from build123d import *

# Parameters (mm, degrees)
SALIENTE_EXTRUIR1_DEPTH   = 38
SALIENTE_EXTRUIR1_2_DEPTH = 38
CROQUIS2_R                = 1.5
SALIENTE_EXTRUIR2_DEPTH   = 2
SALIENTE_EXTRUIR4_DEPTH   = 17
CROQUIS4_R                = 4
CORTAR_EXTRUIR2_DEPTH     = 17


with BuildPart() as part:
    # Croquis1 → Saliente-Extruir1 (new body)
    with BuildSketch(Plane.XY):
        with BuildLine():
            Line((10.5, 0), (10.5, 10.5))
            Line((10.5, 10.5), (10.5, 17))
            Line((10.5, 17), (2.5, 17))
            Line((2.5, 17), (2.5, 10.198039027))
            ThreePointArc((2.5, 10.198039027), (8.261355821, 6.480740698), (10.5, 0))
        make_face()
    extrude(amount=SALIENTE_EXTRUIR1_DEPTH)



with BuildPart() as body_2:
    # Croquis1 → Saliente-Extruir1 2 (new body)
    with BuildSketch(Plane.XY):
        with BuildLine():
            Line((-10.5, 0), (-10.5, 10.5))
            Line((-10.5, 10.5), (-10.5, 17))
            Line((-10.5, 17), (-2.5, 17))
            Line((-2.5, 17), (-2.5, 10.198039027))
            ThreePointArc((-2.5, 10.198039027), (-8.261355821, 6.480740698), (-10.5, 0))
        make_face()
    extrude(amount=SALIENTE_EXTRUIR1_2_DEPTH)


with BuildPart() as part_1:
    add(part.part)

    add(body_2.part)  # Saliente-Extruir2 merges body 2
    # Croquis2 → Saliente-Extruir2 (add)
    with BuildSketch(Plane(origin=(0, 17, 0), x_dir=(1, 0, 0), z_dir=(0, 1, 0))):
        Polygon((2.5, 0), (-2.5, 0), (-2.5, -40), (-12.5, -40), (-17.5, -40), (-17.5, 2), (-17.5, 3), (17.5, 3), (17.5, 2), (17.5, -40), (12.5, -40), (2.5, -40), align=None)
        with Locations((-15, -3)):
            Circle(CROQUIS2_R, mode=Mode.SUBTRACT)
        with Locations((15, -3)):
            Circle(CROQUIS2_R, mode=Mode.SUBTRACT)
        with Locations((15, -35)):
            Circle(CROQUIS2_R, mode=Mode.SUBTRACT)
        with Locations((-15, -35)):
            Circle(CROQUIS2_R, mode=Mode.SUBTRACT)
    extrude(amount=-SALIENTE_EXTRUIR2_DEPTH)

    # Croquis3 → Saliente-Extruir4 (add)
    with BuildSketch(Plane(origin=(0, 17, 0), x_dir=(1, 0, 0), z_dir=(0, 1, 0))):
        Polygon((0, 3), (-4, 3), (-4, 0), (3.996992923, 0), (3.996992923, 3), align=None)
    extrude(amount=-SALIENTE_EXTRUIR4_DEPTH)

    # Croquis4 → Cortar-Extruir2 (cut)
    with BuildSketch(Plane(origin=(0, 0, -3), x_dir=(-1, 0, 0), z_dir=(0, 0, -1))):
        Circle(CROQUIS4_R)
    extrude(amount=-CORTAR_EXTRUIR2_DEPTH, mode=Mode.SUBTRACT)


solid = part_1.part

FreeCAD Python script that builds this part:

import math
import FreeCAD as App
import Part
import Sketcher


def add_polygon(sketch, points):
    """Adds a closed chain of lines whose ends are joined by coincident constraints."""
    first, n = sketch.GeometryCount, len(points)
    for a, b in zip(points, points[1:] + points[:1]):
        sketch.addGeometry(Part.LineSegment(App.Vector(*a, 0), App.Vector(*b, 0)), False)
    for i in range(n):
        sketch.addConstraint(Sketcher.Constraint("Coincident", first + i, 2, first + (i + 1) % n, 1))

doc = App.newDocument("Part")
body = doc.addObject("PartDesign::Body", "Body")

# Sketch on XY plane
sketch1 = body.newObject("Sketcher::SketchObject", "Sketch")
sketch1.AttachmentSupport = (doc.getObject("XY_Plane"), [""])
sketch1.MapMode = "FlatFace"
sketch1.addGeometry(Part.LineSegment(App.Vector(10, 0, 0), App.Vector(10, 17, 0)), False)
sketch1.addGeometry(Part.LineSegment(App.Vector(10, 17, 0), App.Vector(2, 17, 0)), False)
sketch1.addGeometry(Part.LineSegment(App.Vector(2, 17, 0), App.Vector(2, 10, 0)), False)
sketch1.addGeometry(Part.ArcOfCircle(Part.Circle(App.Vector(0, 0, 0), App.Vector(0, 0, 1), 10), math.radians(0), math.radians(76)), False)
sketch1.addConstraint(Sketcher.Constraint("Coincident", 0, 2, 1, 1))
sketch1.addConstraint(Sketcher.Constraint("Coincident", 1, 2, 2, 1))
sketch1.addConstraint(Sketcher.Constraint("Coincident", 2, 2, 3, 2))
sketch1.addConstraint(Sketcher.Constraint("Tangent", 3, 1, 0, 1))
sketch1.addConstraint(Sketcher.Constraint("Vertical", 0))
sketch1.addConstraint(Sketcher.Constraint("Horizontal", 1))
sketch1.addConstraint(Sketcher.Constraint("Vertical", 2))
sketch1.addConstraint(Sketcher.Constraint("Coincident", 3, 3, -1, 1))
sketch1.addConstraint(Sketcher.Constraint("Radius", 3, 10.5))
sketch1.addConstraint(Sketcher.Constraint("DistanceX", 1, 2, 1, 1, 8.0))
sketch1.addConstraint(Sketcher.Constraint("DistanceY", 0, 1, 0, 2, 17.0))
pad1 = body.newObject("PartDesign::Pad", "Pad")
pad1.Profile = sketch1
pad1.Length = 38
body2 = doc.addObject("PartDesign::Body", "Body001")

# Sketch on XY plane
sketch2 = body2.newObject("Sketcher::SketchObject", "Sketch001")
sketch2.AttachmentSupport = (doc.getObject("XY_Plane001"), [""])
sketch2.MapMode = "FlatFace"
sketch2.addGeometry(Part.LineSegment(App.Vector(-10, 17, 0), App.Vector(-10, 0, 0)), False)
sketch2.addGeometry(Part.ArcOfCircle(Part.Circle(App.Vector(0, 0, 0), App.Vector(0, 0, 1), 10), math.radians(104), math.radians(180)), False)
sketch2.addGeometry(Part.LineSegment(App.Vector(-2, 10, 0), App.Vector(-2, 17, 0)), False)
sketch2.addGeometry(Part.LineSegment(App.Vector(-2, 17, 0), App.Vector(-10, 17, 0)), False)
sketch2.addConstraint(Sketcher.Constraint("Tangent", 0, 2, 1, 2))
sketch2.addConstraint(Sketcher.Constraint("Coincident", 1, 1, 2, 1))
sketch2.addConstraint(Sketcher.Constraint("Coincident", 2, 2, 3, 1))
sketch2.addConstraint(Sketcher.Constraint("Coincident", 3, 2, 0, 1))
sketch2.addConstraint(Sketcher.Constraint("Vertical", 0))
sketch2.addConstraint(Sketcher.Constraint("Vertical", 2))
sketch2.addConstraint(Sketcher.Constraint("Horizontal", 3))
sketch2.addConstraint(Sketcher.Constraint("Coincident", 1, 3, -1, 1))
sketch2.addConstraint(Sketcher.Constraint("Radius", 1, 10.5))
sketch2.addConstraint(Sketcher.Constraint("DistanceX", 3, 2, 3, 1, 8.0))
sketch2.addConstraint(Sketcher.Constraint("DistanceY", 0, 2, 0, 1, 17.0))
pad2 = body2.newObject("PartDesign::Pad", "Pad001")
pad2.Profile = sketch2
pad2.Length = 38
body.AllowCompound = True
doc.recompute()

boolean = body.newObject("PartDesign::Boolean", "Boolean")
boolean.Type = "Fuse"
boolean.addObjects([body2])

# Sketch on XZ plane
sketch3 = body.newObject("Sketcher::SketchObject", "Sketch002")
sketch3.AttachmentSupport = (doc.getObject("XZ_Plane"), [""])
sketch3.MapMode = "FlatFace"
sketch3.AttachmentOffset = App.Placement(App.Vector(0, 0, -17), App.Rotation())
add_polygon(sketch3, [(-2.5, 0), (2.5, 0), (2.5, 40), (17.5, 40), (17.5, -3), (-17.5, -3), (-17.5, 40), (-2.5, 40)])  # lines 0-7
sketch3.addGeometry(Part.Circle(App.Vector(15, 35, 0), App.Vector(0, 0, 1), 1.5), False)  # 8
sketch3.addGeometry(Part.Circle(App.Vector(-15, 35, 0), App.Vector(0, 0, 1), 1.5), False)  # 9
sketch3.addGeometry(Part.Circle(App.Vector(15, 3, 0), App.Vector(0, 0, 1), 1.5), False)  # 10
sketch3.addGeometry(Part.Circle(App.Vector(-15, 3, 0), App.Vector(0, 0, 1), 1.5), False)  # 11
sketch3.addConstraint(Sketcher.Constraint("Horizontal", 0))
sketch3.addConstraint(Sketcher.Constraint("Vertical", 1))
sketch3.addConstraint(Sketcher.Constraint("Horizontal", 2))
sketch3.addConstraint(Sketcher.Constraint("Vertical", 3))
sketch3.addConstraint(Sketcher.Constraint("Horizontal", 4))
sketch3.addConstraint(Sketcher.Constraint("Vertical", 5))
sketch3.addConstraint(Sketcher.Constraint("Horizontal", 6))
sketch3.addConstraint(Sketcher.Constraint("Vertical", 7))
sketch3.addConstraint(Sketcher.Constraint("Equal", 8, 9))
sketch3.addConstraint(Sketcher.Constraint("Equal", 9, 10))
sketch3.addConstraint(Sketcher.Constraint("Equal", 10, 11))
sketch3.addConstraint(Sketcher.Constraint("Symmetric", 0, 2, 7, 2, -1, 1))
sketch3.addConstraint(Sketcher.Constraint("Symmetric", 8, 3, 9, 3, -2))
sketch3.addConstraint(Sketcher.Constraint("Symmetric", 10, 3, 11, 3, -2))
sketch3.addConstraint(Sketcher.Constraint("Symmetric", 2, 2, 5, 2, -2))
sketch3.addConstraint(Sketcher.Constraint("Vertical", 8, 3, 10, 3))
sketch3.addConstraint(Sketcher.Constraint("Diameter", 8, 3.0))
sketch3.addConstraint(Sketcher.Constraint("DistanceX", 0, 1, 0, 2, 5.0))
sketch3.addConstraint(Sketcher.Constraint("DistanceX", 2, 1, 2, 2, 15.0))
sketch3.addConstraint(Sketcher.Constraint("DistanceY", 1, 1, 1, 2, 40.0))
sketch3.addConstraint(Sketcher.Constraint("DistanceY", 3, 2, 3, 1, 43.0))
sketch3.addConstraint(Sketcher.Constraint("DistanceX", -1, 1, 8, 3, 15.0))
sketch3.addConstraint(Sketcher.Constraint("DistanceY", -1, 1, 8, 3, 35.0))
sketch3.addConstraint(Sketcher.Constraint("DistanceY", -1, 1, 10, 3, 3.0))
pad3 = body.newObject("PartDesign::Pad", "Pad002")
pad3.Profile = sketch3
pad3.Length = 2

# Sketch on XZ plane
sketch4 = body.newObject("Sketcher::SketchObject", "Sketch003")
sketch4.AttachmentSupport = (doc.getObject("XZ_Plane"), [""])
sketch4.MapMode = "FlatFace"
sketch4.AttachmentOffset = App.Placement(App.Vector(0, 0, -17), App.Rotation())
add_polygon(sketch4, [(-4, -3), (-4, 0), (4, 0), (4, -3)])  # lines 0-3
sketch4.addConstraint(Sketcher.Constraint("Vertical", 0))
sketch4.addConstraint(Sketcher.Constraint("Horizontal", 1))
sketch4.addConstraint(Sketcher.Constraint("Vertical", 2))
sketch4.addConstraint(Sketcher.Constraint("Horizontal", 3))
sketch4.addConstraint(Sketcher.Constraint("PointOnObject", 0, 2, -1))
sketch4.addConstraint(Sketcher.Constraint("DistanceY", 0, 1, 0, 2, 3.0))
sketch4.addConstraint(Sketcher.Constraint("DistanceX", 0, 2, -1, 1, 4.0))
sketch4.addConstraint(Sketcher.Constraint("DistanceX", 1, 1, 1, 2, 7.996993))
pad4 = body.newObject("PartDesign::Pad", "Pad003")
pad4.Profile = sketch4
pad4.Length = 17

# Sketch on XY plane
sketch5 = body.newObject("Sketcher::SketchObject", "Sketch004")
sketch5.AttachmentSupport = (doc.getObject("XY_Plane"), [""])
sketch5.MapMode = "FlatFace"
sketch5.AttachmentOffset = App.Placement(App.Vector(0, 0, -3), App.Rotation())
sketch5.addGeometry(Part.Circle(App.Vector(0, 0, 0), App.Vector(0, 0, 1), 4), False)
sketch5.addConstraint(Sketcher.Constraint("Coincident", 0, 3, -1, 1))
sketch5.addConstraint(Sketcher.Constraint("Diameter", 0, 8.0))
pocket1 = body.newObject("PartDesign::Pocket", "Pocket")
pocket1.Profile = sketch5
pocket1.Length = 17
pocket1.Reversed = True

doc.recompute()
